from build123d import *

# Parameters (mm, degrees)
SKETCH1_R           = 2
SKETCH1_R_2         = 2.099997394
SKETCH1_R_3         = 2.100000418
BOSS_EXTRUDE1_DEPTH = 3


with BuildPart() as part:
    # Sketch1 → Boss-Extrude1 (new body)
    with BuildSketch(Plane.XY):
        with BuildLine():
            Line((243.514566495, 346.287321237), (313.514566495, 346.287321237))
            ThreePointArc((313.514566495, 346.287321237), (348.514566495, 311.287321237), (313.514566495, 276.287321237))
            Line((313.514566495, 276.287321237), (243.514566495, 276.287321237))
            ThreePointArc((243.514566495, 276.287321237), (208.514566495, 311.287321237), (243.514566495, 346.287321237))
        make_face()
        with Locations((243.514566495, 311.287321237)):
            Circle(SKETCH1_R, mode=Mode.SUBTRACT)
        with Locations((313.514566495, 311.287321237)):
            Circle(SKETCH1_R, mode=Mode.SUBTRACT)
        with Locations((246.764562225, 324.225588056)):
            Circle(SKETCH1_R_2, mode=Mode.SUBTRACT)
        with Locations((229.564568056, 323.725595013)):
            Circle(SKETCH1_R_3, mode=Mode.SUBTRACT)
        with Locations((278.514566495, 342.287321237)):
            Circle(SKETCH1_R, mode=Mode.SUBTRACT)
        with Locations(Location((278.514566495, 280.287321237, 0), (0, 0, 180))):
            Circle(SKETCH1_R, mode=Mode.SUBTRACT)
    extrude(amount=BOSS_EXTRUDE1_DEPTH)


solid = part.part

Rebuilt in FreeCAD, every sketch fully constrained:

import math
import FreeCAD as App
import Part
import Sketcher

V = App.Vector
Q = App.Units.Quantity

doc = App.newDocument("Part")
body = doc.addObject("PartDesign::Body", "Body")

sketch1 = body.newObject("Sketcher::SketchObject", "Sketch")
sketch1.AttachmentSupport = (doc.getObject("XY_Plane"), [""])
sketch1.MapMode = "FlatFace"
sketch1.addGeometry([
    Part.LineSegment(V(313.514566, 346.287321, 0), V(243.514566, 346.287321, 0)),
    Part.ArcOfCircle(Part.Circle(V(243.514566, 311.287321, 0), V(0, 0, 1), 35), math.radians(90), math.radians(270)),
    Part.LineSegment(V(243.514566, 276.287321, 0), V(313.514566, 276.287321, 0)),
    Part.ArcOfCircle(Part.Circle(V(313.514566, 311.287321, 0), V(0, 0, 1), 35), math.radians(-90), math.radians(90)),
    Part.Circle(V(278.514566, 280.287321, 0), V(0, 0, 1), 2),
    Part.Circle(V(313.514566, 311.287321, 0), V(0, 0, 1), 2),
    Part.Circle(V(278.514566, 342.287321, 0), V(0, 0, 1), 2),
    Part.Circle(V(243.514566, 311.287321, 0), V(0, 0, 1), 2),
    Part.Circle(V(246.764562, 324.225588, 0), V(0, 0, 1), 2.099997),
    Part.Circle(V(229.564568, 323.725595, 0), V(0, 0, 1), 2.1),
], False)
sketch1.addConstraint([
    Sketcher.Constraint("Tangent", 0, 2, 1, 1),
    Sketcher.Constraint("Tangent", 1, 2, 2, 1),
    Sketcher.Constraint("Tangent", 2, 2, 3, 1),
    Sketcher.Constraint("Tangent", 3, 2, 0, 1),
    Sketcher.Constraint("Horizontal", 0),
    Sketcher.Constraint("Horizontal", 2),
    Sketcher.Constraint("Coincident", 5, 3, 3, 3),
    Sketcher.Constraint("Coincident", 7, 3, 1, 3),
    Sketcher.Constraint("Equal", 4, 5),
    Sketcher.Constraint("Equal", 5, 6),
    Sketcher.Constraint("Equal", 6, 7),
    Sketcher.Constraint("Vertical", 4, 3, 6, 3),
    Sketcher.Constraint("Diameter", 4, Q("4 mm")),
    Sketcher.Constraint("Radius", 1, Q("35 mm")),
    Sketcher.Constraint("Diameter", 9, Q("4.200001 mm")),
    Sketcher.Constraint("DistanceX", 0, 2, 0, 1, Q("70 mm")),
    Sketcher.Constraint("DistanceX", 1, 3, 4, 3, Q("35 mm")),
    Sketcher.Constraint("DistanceY", 4, 3, 1, 3, Q("31 mm")),
    Sketcher.Constraint("DistanceY", 1, 3, 6, 3, Q("31 mm")),
    Sketcher.Constraint("DistanceX", 9, 3, 1, 3, Q("13.949998 mm")),
    Sketcher.Constraint("Diameter", 8, Q("4.199995 mm")),
    Sketcher.Constraint("DistanceY", -1, 1, 1, 3, Q("311.287321 mm")),
    Sketcher.Constraint("DistanceY", -1, 1, 8, 3, Q("324.225588 mm")),
    Sketcher.Constraint("DistanceX", -1, 1, 9, 3, Q("229.564568 mm")),
    Sketcher.Constraint("DistanceX", -1, 1, 8, 3, Q("246.764562 mm")),
    Sketcher.Constraint("DistanceY", -1, 1, 9, 3, Q("323.725595 mm")),
])
pad1 = body.newObject("PartDesign::Pad", "Pad")
pad1.Profile = sketch1
pad1.Length = 3

doc.recompute()
